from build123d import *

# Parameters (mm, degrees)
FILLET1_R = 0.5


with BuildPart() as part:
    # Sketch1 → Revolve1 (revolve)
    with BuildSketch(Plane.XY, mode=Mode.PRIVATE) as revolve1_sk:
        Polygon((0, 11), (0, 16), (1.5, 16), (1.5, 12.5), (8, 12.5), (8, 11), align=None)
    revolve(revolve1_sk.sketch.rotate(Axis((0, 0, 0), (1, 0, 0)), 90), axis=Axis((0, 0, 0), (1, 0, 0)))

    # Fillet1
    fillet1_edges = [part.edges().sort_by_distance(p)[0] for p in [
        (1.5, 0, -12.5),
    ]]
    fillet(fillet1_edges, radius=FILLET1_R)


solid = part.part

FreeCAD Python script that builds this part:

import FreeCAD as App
import Part
import Sketcher

V = App.Vector


def edges_at(feature, points):
    """Names of the edges that pass closest to the given points."""
    edges = feature.Shape.Edges
    near = lambda p: min(range(len(edges)), key=lambda i: edges[i].distToShape(Part.Vertex(*p))[0])
    return sorted({f"Edge{near(p) + 1}" for p in points})

doc = App.newDocument("Part")
body = doc.addObject("PartDesign::Body", "Body")

# Sketch on XY plane
sketch1 = body.newObject("Sketcher::SketchObject", "Sketch")
sketch1.AttachmentSupport = (doc.getObject("XY_Plane"), [""])
sketch1.MapMode = "FlatFace"
sketch1.addGeometry([
    Part.LineSegment(V(0, 16, 0), V(0, 11, 0)),  # 0
    Part.LineSegment(V(0, 11, 0), V(8, 11, 0)),  # 1
    Part.LineSegment(V(8, 11, 0), V(8, 12.5, 0)),  # 2
    Part.LineSegment(V(8, 12.5, 0), V(1.5, 12.5, 0)),  # 3
    Part.LineSegment(V(1.5, 12.5, 0), V(1.5, 16, 0)),  # 4
    Part.LineSegment(V(1.5, 16, 0), V(0, 16, 0)),  # 5
], False)
sketch1.addConstraint([
    Sketcher.Constraint("Coincident", 0, 2, 1, 1),
    Sketcher.Constraint("Coincident", 1, 2, 2, 1),
    Sketcher.Constraint("Coincident", 2, 2, 3, 1),
    Sketcher.Constraint("Coincident", 3, 2, 4, 1),
    Sketcher.Constraint("Coincident", 4, 2, 5, 1),
    Sketcher.Constraint("Coincident", 5, 2, 0, 1),
    Sketcher.Constraint("Vertical", 0),
    Sketcher.Constraint("Horizontal", 1),
    Sketcher.Constraint("Vertical", 2),
    Sketcher.Constraint("Horizontal", 3),
    Sketcher.Constraint("Vertical", 4),
    Sketcher.Constraint("Horizontal", 5),
    Sketcher.Constraint("PointOnObject", 0, 2, -2),
    Sketcher.Constraint("Equal", 5, 2),
    Sketcher.Constraint("DistanceX", 1, 1, 1, 2, 8.0),
    Sketcher.Constraint("DistanceY", 0, 2, 0, 1, 5.0),
    Sketcher.Constraint("DistanceX", 3, 2, 3, 1, 6.5),
    Sketcher.Constraint("DistanceY", -1, 1, 0, 2, 11.0),
])
revolution = body.newObject("PartDesign::Revolution", "Revolution")
revolution.Profile = sketch1
revolution.ReferenceAxis = (sketch1, ["H_Axis"])
revolution.Angle = 360
doc.recompute()

fillet = body.newObject("PartDesign::Fillet", "Fillet")
fillet.Base = (revolution, edges_at(revolution, [(1.5, 0, -12.5)]))
fillet.Radius = 0.5

doc.recompute()
